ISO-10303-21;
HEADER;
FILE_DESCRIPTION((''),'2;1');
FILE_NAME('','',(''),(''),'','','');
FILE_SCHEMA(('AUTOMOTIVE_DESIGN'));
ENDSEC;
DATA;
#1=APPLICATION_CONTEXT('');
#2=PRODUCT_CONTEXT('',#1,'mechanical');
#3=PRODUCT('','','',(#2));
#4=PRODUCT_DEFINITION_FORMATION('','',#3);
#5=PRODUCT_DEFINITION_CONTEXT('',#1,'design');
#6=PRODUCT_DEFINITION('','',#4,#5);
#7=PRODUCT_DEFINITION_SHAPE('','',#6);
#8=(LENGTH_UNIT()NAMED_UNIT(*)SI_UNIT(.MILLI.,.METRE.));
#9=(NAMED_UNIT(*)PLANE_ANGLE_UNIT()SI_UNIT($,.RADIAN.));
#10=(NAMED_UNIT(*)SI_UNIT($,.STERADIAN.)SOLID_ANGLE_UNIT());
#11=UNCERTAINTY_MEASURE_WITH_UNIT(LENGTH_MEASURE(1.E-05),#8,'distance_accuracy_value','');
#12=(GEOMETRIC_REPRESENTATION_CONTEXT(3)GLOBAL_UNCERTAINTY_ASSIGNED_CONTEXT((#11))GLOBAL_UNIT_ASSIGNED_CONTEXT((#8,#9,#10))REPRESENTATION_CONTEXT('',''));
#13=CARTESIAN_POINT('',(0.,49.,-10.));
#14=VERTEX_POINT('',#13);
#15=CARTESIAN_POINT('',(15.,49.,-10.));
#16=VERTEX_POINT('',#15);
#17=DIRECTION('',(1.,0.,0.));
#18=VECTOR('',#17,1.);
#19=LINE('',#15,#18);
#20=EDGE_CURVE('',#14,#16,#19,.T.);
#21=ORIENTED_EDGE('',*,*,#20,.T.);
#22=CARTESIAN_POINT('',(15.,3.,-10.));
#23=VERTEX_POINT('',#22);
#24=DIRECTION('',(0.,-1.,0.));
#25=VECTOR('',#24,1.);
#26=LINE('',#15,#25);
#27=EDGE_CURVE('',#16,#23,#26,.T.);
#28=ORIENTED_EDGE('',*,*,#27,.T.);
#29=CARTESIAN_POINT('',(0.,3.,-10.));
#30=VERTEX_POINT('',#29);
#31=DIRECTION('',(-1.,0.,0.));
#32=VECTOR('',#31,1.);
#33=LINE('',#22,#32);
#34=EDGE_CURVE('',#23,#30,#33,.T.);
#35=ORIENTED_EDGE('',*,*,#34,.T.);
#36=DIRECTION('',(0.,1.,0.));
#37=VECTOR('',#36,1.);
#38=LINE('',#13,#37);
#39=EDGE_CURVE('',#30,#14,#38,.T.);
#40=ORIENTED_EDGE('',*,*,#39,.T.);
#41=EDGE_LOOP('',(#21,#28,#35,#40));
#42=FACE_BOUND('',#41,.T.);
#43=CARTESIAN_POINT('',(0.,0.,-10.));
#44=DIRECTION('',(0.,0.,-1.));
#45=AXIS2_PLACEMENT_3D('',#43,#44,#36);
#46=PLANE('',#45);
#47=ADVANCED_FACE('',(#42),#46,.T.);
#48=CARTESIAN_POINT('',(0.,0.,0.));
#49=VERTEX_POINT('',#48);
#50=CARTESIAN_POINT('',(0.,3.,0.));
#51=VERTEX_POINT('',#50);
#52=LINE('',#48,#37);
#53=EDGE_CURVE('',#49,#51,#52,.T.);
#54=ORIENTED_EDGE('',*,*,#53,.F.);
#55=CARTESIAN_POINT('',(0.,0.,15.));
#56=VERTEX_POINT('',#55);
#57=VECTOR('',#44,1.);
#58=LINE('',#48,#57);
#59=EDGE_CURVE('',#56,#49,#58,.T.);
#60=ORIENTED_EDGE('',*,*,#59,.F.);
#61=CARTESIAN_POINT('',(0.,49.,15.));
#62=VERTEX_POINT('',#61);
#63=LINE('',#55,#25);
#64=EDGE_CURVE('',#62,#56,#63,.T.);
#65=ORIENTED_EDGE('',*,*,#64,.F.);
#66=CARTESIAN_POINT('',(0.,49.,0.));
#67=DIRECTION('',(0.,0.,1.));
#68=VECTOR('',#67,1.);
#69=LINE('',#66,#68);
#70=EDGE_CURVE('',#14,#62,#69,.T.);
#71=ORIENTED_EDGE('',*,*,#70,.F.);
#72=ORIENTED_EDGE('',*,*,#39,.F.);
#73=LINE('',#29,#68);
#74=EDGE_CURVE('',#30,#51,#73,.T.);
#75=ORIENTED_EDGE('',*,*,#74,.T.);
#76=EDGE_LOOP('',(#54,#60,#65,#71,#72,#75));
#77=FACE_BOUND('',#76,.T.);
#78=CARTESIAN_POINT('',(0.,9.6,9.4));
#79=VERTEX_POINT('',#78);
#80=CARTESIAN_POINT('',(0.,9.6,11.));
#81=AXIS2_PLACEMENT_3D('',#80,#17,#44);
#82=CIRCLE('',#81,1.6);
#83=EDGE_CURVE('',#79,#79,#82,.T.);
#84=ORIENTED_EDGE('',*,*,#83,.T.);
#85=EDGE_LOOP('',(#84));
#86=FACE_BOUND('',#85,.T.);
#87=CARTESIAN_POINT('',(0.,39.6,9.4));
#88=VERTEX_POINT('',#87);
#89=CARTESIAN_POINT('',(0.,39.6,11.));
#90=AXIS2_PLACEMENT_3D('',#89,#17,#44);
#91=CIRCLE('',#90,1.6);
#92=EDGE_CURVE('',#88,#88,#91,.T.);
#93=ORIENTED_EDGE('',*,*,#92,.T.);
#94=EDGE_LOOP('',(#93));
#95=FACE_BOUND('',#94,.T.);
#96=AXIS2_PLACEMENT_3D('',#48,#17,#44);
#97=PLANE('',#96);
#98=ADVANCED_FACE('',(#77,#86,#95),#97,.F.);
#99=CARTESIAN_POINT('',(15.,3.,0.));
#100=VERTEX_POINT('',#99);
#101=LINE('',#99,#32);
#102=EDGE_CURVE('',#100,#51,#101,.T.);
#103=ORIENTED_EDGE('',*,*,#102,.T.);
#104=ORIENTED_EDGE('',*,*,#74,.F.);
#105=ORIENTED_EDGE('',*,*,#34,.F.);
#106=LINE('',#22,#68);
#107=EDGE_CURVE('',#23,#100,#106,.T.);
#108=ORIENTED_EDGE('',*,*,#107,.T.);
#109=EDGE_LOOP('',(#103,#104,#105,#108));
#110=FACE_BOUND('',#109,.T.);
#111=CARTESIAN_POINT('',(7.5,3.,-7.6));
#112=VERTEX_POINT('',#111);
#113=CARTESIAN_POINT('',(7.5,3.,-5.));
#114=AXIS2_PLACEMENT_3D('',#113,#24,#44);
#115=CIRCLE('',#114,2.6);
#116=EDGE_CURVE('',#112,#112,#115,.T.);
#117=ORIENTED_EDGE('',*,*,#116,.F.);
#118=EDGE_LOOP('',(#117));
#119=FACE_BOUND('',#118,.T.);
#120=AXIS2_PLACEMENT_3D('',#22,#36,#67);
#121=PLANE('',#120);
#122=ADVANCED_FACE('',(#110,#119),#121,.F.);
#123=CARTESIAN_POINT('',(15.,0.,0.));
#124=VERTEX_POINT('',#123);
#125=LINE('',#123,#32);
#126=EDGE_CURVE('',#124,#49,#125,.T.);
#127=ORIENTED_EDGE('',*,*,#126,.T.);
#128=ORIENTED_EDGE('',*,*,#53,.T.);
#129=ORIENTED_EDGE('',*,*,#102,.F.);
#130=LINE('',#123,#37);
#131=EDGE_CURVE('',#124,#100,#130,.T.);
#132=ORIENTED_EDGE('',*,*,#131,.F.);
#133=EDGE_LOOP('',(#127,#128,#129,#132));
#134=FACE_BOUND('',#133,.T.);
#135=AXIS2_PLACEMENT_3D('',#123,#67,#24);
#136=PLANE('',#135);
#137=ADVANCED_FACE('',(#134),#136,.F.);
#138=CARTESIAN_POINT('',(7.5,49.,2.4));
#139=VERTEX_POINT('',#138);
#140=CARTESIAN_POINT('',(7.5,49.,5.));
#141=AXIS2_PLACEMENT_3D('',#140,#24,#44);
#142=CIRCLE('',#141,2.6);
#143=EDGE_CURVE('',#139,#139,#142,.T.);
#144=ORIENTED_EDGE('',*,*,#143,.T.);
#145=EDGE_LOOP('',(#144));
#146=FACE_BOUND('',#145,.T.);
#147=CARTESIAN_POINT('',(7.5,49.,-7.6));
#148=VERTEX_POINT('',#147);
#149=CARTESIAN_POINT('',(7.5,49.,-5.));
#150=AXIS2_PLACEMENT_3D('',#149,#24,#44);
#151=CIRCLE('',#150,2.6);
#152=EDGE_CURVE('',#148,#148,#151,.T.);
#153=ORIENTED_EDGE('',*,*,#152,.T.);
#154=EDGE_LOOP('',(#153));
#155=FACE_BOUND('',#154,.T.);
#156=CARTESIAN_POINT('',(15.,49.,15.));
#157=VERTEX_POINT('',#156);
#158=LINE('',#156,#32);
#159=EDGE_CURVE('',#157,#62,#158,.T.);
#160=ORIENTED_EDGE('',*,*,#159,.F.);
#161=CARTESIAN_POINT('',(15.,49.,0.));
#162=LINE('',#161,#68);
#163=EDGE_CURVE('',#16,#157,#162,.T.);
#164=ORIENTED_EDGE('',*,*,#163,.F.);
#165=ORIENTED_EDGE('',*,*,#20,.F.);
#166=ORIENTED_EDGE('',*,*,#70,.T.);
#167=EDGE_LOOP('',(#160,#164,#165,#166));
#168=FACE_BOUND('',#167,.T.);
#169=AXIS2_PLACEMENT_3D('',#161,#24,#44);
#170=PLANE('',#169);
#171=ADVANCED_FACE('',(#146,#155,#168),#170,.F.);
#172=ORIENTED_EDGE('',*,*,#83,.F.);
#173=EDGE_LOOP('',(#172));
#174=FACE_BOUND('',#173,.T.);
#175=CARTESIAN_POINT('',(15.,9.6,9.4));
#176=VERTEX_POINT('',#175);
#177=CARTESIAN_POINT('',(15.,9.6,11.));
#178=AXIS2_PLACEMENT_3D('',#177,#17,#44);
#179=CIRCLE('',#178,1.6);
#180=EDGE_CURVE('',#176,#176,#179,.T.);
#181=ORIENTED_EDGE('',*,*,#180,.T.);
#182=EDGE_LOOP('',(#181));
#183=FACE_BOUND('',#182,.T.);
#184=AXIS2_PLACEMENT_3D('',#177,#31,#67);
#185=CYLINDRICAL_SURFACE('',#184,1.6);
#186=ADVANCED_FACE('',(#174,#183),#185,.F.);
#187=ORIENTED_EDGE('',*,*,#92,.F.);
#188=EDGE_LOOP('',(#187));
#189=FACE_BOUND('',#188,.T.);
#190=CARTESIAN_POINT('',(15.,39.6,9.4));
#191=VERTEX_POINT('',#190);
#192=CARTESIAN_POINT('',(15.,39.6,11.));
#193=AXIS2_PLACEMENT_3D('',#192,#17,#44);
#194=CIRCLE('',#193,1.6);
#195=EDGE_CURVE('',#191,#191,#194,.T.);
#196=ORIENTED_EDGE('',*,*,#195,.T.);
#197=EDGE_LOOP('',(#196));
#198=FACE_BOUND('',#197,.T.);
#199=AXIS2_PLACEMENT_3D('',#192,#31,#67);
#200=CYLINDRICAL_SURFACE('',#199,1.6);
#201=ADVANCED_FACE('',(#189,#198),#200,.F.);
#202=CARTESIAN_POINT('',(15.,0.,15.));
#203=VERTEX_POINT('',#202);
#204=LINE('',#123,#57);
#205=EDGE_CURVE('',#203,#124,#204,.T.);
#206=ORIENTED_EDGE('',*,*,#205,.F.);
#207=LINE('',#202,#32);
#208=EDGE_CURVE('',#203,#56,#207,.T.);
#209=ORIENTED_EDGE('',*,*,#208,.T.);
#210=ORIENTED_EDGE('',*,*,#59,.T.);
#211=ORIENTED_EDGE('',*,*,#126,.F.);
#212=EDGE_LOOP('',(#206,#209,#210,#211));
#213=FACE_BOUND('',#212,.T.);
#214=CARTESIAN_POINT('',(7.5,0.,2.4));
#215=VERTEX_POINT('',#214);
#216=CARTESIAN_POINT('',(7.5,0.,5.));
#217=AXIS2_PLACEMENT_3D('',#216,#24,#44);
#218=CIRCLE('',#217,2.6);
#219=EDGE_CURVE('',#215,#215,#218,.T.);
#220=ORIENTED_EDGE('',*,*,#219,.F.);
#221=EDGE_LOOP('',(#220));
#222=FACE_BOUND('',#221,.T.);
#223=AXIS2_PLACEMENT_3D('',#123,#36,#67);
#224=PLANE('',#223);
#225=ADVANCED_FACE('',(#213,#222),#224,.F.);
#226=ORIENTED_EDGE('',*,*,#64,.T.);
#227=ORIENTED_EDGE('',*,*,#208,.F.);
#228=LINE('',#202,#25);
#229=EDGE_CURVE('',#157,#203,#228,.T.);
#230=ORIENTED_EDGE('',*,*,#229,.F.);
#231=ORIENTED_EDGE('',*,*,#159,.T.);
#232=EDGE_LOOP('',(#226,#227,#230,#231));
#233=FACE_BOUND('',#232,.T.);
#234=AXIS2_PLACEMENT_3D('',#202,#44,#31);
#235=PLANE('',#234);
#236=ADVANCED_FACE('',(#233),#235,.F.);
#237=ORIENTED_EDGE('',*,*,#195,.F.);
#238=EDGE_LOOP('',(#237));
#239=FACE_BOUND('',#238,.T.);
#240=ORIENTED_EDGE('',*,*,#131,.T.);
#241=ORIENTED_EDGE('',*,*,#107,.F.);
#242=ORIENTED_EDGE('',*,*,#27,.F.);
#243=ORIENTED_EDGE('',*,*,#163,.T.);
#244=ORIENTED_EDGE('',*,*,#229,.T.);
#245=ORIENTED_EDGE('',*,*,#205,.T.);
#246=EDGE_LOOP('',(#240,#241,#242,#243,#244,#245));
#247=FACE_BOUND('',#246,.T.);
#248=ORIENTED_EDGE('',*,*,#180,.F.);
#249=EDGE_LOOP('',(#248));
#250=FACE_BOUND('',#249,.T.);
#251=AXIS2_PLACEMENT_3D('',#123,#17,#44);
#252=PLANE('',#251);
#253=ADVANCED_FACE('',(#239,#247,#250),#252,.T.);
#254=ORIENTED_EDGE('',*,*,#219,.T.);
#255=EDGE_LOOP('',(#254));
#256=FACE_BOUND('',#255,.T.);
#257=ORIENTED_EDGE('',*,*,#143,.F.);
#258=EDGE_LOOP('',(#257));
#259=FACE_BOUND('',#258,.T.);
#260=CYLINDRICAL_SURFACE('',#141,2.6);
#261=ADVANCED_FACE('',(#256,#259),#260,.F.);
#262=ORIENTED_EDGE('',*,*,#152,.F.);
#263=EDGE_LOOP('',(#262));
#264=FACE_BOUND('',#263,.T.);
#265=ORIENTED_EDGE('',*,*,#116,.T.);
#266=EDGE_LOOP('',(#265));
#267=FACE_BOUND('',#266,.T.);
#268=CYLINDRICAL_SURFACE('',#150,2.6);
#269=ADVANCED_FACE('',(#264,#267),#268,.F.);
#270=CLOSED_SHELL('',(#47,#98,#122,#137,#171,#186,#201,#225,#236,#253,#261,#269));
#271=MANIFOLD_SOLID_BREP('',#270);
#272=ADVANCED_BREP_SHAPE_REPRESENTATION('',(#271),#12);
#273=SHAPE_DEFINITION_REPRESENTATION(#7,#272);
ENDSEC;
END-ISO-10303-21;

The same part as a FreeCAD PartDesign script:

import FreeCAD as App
import Part
import Sketcher

V = App.Vector
Q = App.Units.Quantity


def add_polygon(sketch, points):
    """Adds a closed chain of lines whose ends are joined by coincident constraints."""
    first, n = sketch.GeometryCount, len(points)
    for a, b in zip(points, points[1:] + points[:1]):
        sketch.addGeometry(Part.LineSegment(App.Vector(*a, 0), App.Vector(*b, 0)), False)
    for i in range(n):
        sketch.addConstraint(Sketcher.Constraint("Coincident", first + i, 2, first + (i + 1) % n, 1))

doc = App.newDocument("Part")
body = doc.addObject("PartDesign::Body", "Body")

sketch1 = body.newObject("Sketcher::SketchObject", "Sketch")
sketch1.AttachmentSupport = (doc.getObject("YZ_Plane"), [""])
sketch1.MapMode = "FlatFace"
add_polygon(sketch1, [(49, 15), (0, 15), (0, 0), (49, 0)])
sketch1.addGeometry(Part.Circle(V(9.6, 11, 0), V(0, 0, 1), 1.6), False)
sketch1.addGeometry(Part.Circle(V(39.6, 11, 0), V(0, 0, 1), 1.6), False)
sketch1.addConstraint([
    Sketcher.Constraint("Horizontal", 0),
    Sketcher.Constraint("Vertical", 1),
    Sketcher.Constraint("Horizontal", 2),
    Sketcher.Constraint("Vertical", 3),
    Sketcher.Constraint("Coincident", 1, 2, -1, 1),
    Sketcher.Constraint("Equal", 4, 5),
    Sketcher.Constraint("Horizontal", 4, 3, 5, 3),
    Sketcher.Constraint("Diameter", 4, Q("3.2 mm")),
    Sketcher.Constraint("DistanceX", 0, 2, 0, 1, Q("49 mm")),
    Sketcher.Constraint("DistanceY", 1, 2, 1, 1, Q("15 mm")),
    Sketcher.Constraint("DistanceY", -1, 1, 4, 3, Q("11 mm")),
    Sketcher.Constraint("DistanceX", 4, 3, 5, 3, Q("30 mm")),
    Sketcher.Constraint("DistanceX", -1, 1, 4, 3, Q("9.6 mm")),
])
pad1 = body.newObject("PartDesign::Pad", "Pad")
pad1.Profile = sketch1
pad1.Length = 15

sketch2 = body.newObject("Sketcher::SketchObject", "Sketch001")
sketch2.AttachmentSupport = (doc.getObject("XZ_Plane"), [""])
sketch2.MapMode = "FlatFace"
sketch2.addGeometry(Part.Circle(V(7.5, 5, 0), V(0, 0, 1), 2.6), False)
sketch2.addConstraint([
    Sketcher.Constraint("Diameter", 0, Q("5.2 mm")),
    Sketcher.Constraint("DistanceY", -1, 1, 0, 3, Q("5 mm")),
    Sketcher.Constraint("DistanceX", -1, 1, 0, 3, Q("7.5 mm")),
])
pocket1 = body.newObject("PartDesign::Pocket", "Pocket")
pocket1.Profile = sketch2
pocket1.Type = "ThroughAll"

sketch3 = body.newObject("Sketcher::SketchObject", "Sketch002")
sketch3.AttachmentSupport = (doc.getObject("XY_Plane"), [""])
sketch3.MapMode = "FlatFace"
add_polygon(sketch3, [(15, 49), (15, 3), (0, 3), (0, 49)])
sketch3.addConstraint([
    Sketcher.Constraint("Vertical", 0),
    Sketcher.Constraint("Horizontal", 1),
    Sketcher.Constraint("Vertical", 2),
    Sketcher.Constraint("Horizontal", 3),
    Sketcher.Constraint("PointOnObject", 1, 2, -2),
    Sketcher.Constraint("DistanceX", 1, 2, 1, 1, Q("15 mm")),
    Sketcher.Constraint("DistanceY", 0, 2, 0, 1, Q("46 mm")),
    Sketcher.Constraint("DistanceY", -1, 1, 0, 2, Q("3 mm")),
])
pad2 = body.newObject("PartDesign::Pad", "Pad001")
pad2.Profile = sketch3
pad2.Length = 10
pad2.Reversed = True

sketch4 = body.newObject("Sketcher::SketchObject", "Sketch003")
sketch4.AttachmentSupport = (doc.getObject("XZ_Plane"), [""])
sketch4.MapMode = "FlatFace"
sketch4.AttachmentOffset = App.Placement(V(0, 0, -3), App.Rotation())
sketch4.addGeometry(Part.Circle(V(7.5, -5, 0), V(0, 0, 1), 2.6), False)
sketch4.addConstraint([
    Sketcher.Constraint("Diameter", 0, Q("5.2 mm")),
    Sketcher.Constraint("DistanceY", 0, 3, -1, 1, Q("5 mm")),
    Sketcher.Constraint("DistanceX", -1, 1, 0, 3, Q("7.5 mm")),
])
pocket2 = body.newObject("PartDesign::Pocket", "Pocket001")
pocket2.Profile = sketch4
pocket2.Type = "ThroughAll"

doc.recompute()
